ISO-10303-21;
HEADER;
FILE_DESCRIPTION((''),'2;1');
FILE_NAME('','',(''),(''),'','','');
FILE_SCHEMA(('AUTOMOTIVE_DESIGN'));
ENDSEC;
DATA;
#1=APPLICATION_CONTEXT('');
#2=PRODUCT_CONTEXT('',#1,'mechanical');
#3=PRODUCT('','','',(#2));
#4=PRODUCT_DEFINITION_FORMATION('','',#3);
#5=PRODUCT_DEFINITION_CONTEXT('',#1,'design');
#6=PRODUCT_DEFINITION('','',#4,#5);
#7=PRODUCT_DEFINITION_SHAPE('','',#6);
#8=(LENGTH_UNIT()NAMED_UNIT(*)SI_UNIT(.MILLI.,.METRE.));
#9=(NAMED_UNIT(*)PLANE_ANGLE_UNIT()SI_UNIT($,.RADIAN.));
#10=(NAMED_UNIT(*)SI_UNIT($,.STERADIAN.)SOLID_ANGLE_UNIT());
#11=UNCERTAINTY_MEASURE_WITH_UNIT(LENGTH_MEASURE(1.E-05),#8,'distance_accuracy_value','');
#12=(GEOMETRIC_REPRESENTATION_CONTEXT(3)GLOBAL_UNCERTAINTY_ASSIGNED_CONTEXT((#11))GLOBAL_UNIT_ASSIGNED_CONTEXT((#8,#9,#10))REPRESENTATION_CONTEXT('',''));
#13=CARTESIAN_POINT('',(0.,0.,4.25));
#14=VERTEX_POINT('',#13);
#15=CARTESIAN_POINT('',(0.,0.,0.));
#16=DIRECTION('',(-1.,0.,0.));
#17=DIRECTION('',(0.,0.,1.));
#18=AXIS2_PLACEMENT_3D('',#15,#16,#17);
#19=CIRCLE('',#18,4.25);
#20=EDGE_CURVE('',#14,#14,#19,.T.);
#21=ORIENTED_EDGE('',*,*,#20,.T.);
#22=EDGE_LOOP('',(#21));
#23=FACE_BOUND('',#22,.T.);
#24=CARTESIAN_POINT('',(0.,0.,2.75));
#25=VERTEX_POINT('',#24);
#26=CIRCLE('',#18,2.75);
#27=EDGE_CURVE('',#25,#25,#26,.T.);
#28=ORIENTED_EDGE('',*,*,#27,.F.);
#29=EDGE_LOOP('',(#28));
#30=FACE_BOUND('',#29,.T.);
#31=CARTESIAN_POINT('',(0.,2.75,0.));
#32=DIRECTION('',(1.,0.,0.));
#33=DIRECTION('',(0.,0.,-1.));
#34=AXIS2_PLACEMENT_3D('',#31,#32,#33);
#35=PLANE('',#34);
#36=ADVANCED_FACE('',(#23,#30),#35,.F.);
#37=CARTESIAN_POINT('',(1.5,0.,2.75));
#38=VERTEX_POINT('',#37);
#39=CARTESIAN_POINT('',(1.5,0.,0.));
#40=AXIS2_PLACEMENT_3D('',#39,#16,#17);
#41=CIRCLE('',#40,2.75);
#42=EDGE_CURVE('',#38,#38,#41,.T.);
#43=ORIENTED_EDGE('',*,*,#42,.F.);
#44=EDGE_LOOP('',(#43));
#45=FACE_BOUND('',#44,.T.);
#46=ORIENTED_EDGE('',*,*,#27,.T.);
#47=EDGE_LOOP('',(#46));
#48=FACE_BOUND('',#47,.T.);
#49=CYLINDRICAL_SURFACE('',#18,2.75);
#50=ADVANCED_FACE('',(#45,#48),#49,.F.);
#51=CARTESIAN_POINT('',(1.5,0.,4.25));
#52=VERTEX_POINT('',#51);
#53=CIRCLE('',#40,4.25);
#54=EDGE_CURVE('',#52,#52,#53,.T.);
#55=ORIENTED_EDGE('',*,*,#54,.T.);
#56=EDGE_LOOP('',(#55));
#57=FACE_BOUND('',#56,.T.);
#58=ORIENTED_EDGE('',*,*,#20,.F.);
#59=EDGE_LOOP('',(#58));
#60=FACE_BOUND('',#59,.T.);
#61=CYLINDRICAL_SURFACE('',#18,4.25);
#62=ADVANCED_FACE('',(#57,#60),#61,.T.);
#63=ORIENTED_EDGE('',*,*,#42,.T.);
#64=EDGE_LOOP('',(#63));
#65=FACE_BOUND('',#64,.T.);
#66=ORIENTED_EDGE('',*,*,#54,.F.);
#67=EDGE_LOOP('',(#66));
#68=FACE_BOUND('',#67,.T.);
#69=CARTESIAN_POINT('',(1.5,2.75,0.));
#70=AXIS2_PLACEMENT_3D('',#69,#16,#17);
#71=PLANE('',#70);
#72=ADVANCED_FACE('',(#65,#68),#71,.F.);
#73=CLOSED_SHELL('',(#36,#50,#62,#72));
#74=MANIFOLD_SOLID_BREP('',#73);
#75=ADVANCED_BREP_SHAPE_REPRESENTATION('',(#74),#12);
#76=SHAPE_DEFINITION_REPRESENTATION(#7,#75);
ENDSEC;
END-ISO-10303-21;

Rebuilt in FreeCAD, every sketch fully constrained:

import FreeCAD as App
import Part
import Sketcher
from FreeCAD import Vector

doc = App.newDocument("Part")
body = doc.addObject("PartDesign::Body", "Body")

# Sketch on XY plane
sketch1 = body.newObject("Sketcher::SketchObject", "Sketch")
sketch1.AttachmentSupport = (doc.getObject("XY_Plane"), [""])
sketch1.MapMode = "FlatFace"
sketch1.addGeometry([
    Part.LineSegment(Vector(0, 4.25, 0), Vector(0, 2.75, 0)),
    Part.LineSegment(Vector(0, 2.75, 0), Vector(1.5, 2.75, 0)),
    Part.LineSegment(Vector(1.5, 2.75, 0), Vector(1.5, 4.25, 0)),
    Part.LineSegment(Vector(1.5, 4.25, 0), Vector(0, 4.25, 0)),
], False)
sketch1.addConstraint([
    Sketcher.Constraint("Coincident", 0, 2, 1, 1),
    Sketcher.Constraint("Coincident", 1, 2, 2, 1),
    Sketcher.Constraint("Coincident", 2, 2, 3, 1),
    Sketcher.Constraint("Coincident", 3, 2, 0, 1),
    Sketcher.Constraint("Vertical", 0),
    Sketcher.Constraint("Horizontal", 1),
    Sketcher.Constraint("Vertical", 2),
    Sketcher.Constraint("Horizontal", 3),
    Sketcher.Constraint("PointOnObject", 0, 2, -2),
    Sketcher.Constraint("Equal", 3, 0),
    Sketcher.Constraint("DistanceX", 1, 1, 1, 2, 1.5),
    Sketcher.Constraint("DistanceY", -1, 1, 0, 2, 2.75),
])
revolution = body.newObject("PartDesign::Revolution", "Revolution")
revolution.Profile = sketch1
revolution.ReferenceAxis = (sketch1, ["H_Axis"])
revolution.Angle = 360

doc.recompute()
